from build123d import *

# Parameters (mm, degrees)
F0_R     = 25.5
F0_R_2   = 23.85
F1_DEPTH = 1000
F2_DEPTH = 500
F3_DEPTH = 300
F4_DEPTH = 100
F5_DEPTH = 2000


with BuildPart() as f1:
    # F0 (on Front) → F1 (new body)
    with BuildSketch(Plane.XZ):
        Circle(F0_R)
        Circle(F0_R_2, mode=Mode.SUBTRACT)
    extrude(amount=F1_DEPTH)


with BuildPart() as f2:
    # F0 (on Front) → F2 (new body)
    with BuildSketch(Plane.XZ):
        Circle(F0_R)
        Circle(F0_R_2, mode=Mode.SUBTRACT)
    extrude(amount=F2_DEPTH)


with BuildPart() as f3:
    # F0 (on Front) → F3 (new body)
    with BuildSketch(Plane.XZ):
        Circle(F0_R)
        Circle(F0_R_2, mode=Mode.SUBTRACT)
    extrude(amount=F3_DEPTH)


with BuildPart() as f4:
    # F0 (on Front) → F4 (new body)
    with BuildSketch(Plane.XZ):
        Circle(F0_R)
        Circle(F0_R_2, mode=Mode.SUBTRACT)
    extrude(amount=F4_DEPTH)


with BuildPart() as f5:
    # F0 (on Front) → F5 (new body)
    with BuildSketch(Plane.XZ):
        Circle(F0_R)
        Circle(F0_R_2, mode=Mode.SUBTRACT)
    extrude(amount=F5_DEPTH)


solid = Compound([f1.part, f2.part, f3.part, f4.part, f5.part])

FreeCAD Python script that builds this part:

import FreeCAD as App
import Part
import Sketcher
from FreeCAD import Vector

doc = App.newDocument("Part")
params = doc.addObject("Spreadsheet::Sheet", "Params")
for row, (alias, value) in enumerate([
    ("sketch1_diameter", "51 mm"),
    ("sketch1_diameter2", "47.7 mm"),
    ("pad1_length", "1000 mm"),
    ("sketch2_diameter", "51 mm"),
    ("sketch2_diameter2", "47.7 mm"),
    ("pad2_length", "500 mm"),
    ("sketch3_diameter", "51 mm"),
    ("sketch3_diameter2", "47.7 mm"),
    ("pad3_length", "300 mm"),
    ("sketch4_diameter", "51 mm"),
    ("sketch4_diameter2", "47.7 mm"),
    ("pad4_length", "100 mm"),
    ("sketch5_diameter", "51 mm"),
    ("sketch5_diameter2", "47.7 mm"),
    ("pad5_length", "2000 mm"),
], start=1):
    params.set(f"A{row}", alias)
    params.set(f"B{row}", "=" + value)
    params.setAlias(f"B{row}", alias)

body = doc.addObject("PartDesign::Body", "Body")

sketch1 = body.newObject("Sketcher::SketchObject", "Sketch")
sketch1.AttachmentSupport = (doc.getObject("XZ_Plane"), [""])
sketch1.MapMode = "FlatFace"
sketch1.addGeometry([
    Part.Circle(Vector(0, 0, 0), Vector(0, 0, 1), 26),
    Part.Circle(Vector(0, 0, 0), Vector(0, 0, 1), 24),
], False)
sketch1.addConstraint([
    Sketcher.Constraint("Coincident", 0, 3, -1, 1),
    Sketcher.Constraint("Coincident", 1, 3, -1, 1),
    Sketcher.Constraint("Diameter", 0, 51.0),
    Sketcher.Constraint("Diameter", 1, 47.7),
])
sketch1.setExpression("Constraints[2]", "Params.sketch1_diameter")
sketch1.setExpression("Constraints[3]", "Params.sketch1_diameter2")
pad1 = body.newObject("PartDesign::Pad", "Pad")
pad1.Profile = sketch1
pad1.setExpression("Length", "Params.pad1_length")
body2 = doc.addObject("PartDesign::Body", "Body001")

sketch2 = body2.newObject("Sketcher::SketchObject", "Sketch001")
sketch2.AttachmentSupport = (doc.getObject("XZ_Plane001"), [""])
sketch2.MapMode = "FlatFace"
sketch2.addGeometry([
    Part.Circle(Vector(0, 0, 0), Vector(0, 0, 1), 26),
    Part.Circle(Vector(0, 0, 0), Vector(0, 0, 1), 24),
], False)
sketch2.addConstraint([
    Sketcher.Constraint("Coincident", 0, 3, -1, 1),
    Sketcher.Constraint("Coincident", 1, 3, -1, 1),
    Sketcher.Constraint("Diameter", 0, 51.0),
    Sketcher.Constraint("Diameter", 1, 47.7),
])
sketch2.setExpression("Constraints[2]", "Params.sketch2_diameter")
sketch2.setExpression("Constraints[3]", "Params.sketch2_diameter2")
pad2 = body2.newObject("PartDesign::Pad", "Pad001")
pad2.Profile = sketch2
pad2.setExpression("Length", "Params.pad2_length")
body3 = doc.addObject("PartDesign::Body", "Body002")

sketch3 = body3.newObject("Sketcher::SketchObject", "Sketch002")
sketch3.AttachmentSupport = (doc.getObject("XZ_Plane002"), [""])
sketch3.MapMode = "FlatFace"
sketch3.addGeometry([
    Part.Circle(Vector(0, 0, 0), Vector(0, 0, 1), 26),
    Part.Circle(Vector(0, 0, 0), Vector(0, 0, 1), 24),
], False)
sketch3.addConstraint([
    Sketcher.Constraint("Coincident", 0, 3, -1, 1),
    Sketcher.Constraint("Coincident", 1, 3, -1, 1),
    Sketcher.Constraint("Diameter", 0, 51.0),
    Sketcher.Constraint("Diameter", 1, 47.7),
])
sketch3.setExpression("Constraints[2]", "Params.sketch3_diameter")
sketch3.setExpression("Constraints[3]", "Params.sketch3_diameter2")
pad3 = body3.newObject("PartDesign::Pad", "Pad002")
pad3.Profile = sketch3
pad3.setExpression("Length", "Params.pad3_length")
body4 = doc.addObject("PartDesign::Body", "Body003")

sketch4 = body4.newObject("Sketcher::SketchObject", "Sketch003")
sketch4.AttachmentSupport = (doc.getObject("XZ_Plane003"), [""])
sketch4.MapMode = "FlatFace"
sketch4.addGeometry([
    Part.Circle(Vector(0, 0, 0), Vector(0, 0, 1), 26),
    Part.Circle(Vector(0, 0, 0), Vector(0, 0, 1), 24),
], False)
sketch4.addConstraint([
    Sketcher.Constraint("Coincident", 0, 3, -1, 1),
    Sketcher.Constraint("Coincident", 1, 3, -1, 1),
    Sketcher.Constraint("Diameter", 0, 51.0),
    Sketcher.Constraint("Diameter", 1, 47.7),
])
sketch4.setExpression("Constraints[2]", "Params.sketch4_diameter")
sketch4.setExpression("Constraints[3]", "Params.sketch4_diameter2")
pad4 = body4.newObject("PartDesign::Pad", "Pad003")
pad4.Profile = sketch4
pad4.setExpression("Length", "Params.pad4_length")
body5 = doc.addObject("PartDesign::Body", "Body004")

sketch5 = body5.newObject("Sketcher::SketchObject", "Sketch004")
sketch5.AttachmentSupport = (doc.getObject("XZ_Plane004"), [""])
sketch5.MapMode = "FlatFace"
sketch5.addGeometry([
    Part.Circle(Vector(0, 0, 0), Vector(0, 0, 1), 26),
    Part.Circle(Vector(0, 0, 0), Vector(0, 0, 1), 24),
], False)
sketch5.addConstraint([
    Sketcher.Constraint("Coincident", 0, 3, -1, 1),
    Sketcher.Constraint("Coincident", 1, 3, -1, 1),
    Sketcher.Constraint("Diameter", 0, 51.0),
    Sketcher.Constraint("Diameter", 1, 47.7),
])
sketch5.setExpression("Constraints[2]", "Params.sketch5_diameter")
sketch5.setExpression("Constraints[3]", "Params.sketch5_diameter2")
pad5 = body5.newObject("PartDesign::Pad", "Pad004")
pad5.Profile = sketch5
pad5.setExpression("Length", "Params.pad5_length")

doc.recompute()
